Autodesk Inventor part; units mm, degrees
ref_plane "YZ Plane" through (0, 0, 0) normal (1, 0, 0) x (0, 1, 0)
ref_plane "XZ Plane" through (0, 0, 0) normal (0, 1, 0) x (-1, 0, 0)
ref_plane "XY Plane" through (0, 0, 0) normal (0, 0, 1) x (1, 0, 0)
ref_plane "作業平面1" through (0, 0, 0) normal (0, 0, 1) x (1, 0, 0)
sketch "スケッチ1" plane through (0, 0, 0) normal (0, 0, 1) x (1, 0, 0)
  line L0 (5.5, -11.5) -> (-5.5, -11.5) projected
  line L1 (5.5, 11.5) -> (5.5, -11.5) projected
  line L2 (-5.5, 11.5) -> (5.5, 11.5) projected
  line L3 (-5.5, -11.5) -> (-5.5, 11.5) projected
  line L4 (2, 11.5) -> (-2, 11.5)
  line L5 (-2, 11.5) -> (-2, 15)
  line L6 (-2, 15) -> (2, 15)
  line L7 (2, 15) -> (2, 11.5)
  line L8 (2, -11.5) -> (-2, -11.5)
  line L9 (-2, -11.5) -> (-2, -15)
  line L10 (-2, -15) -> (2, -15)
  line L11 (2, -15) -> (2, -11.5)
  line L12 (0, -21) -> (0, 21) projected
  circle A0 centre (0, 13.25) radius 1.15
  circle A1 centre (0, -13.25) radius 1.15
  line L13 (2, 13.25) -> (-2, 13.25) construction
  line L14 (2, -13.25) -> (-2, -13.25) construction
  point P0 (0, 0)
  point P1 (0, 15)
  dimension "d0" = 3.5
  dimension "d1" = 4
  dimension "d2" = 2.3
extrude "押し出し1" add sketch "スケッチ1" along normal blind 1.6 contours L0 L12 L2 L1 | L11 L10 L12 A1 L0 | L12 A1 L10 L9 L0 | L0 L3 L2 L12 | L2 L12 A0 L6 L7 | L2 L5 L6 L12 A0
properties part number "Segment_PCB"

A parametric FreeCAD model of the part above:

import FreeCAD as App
import Part
import Sketcher

doc = App.newDocument("Part")
params = doc.addObject("Spreadsheet::Sheet", "Params")
for row, (alias, value) in enumerate([
    ("sketch1_diameter", "2.3 mm"),
    ("sketch1_width", "4 mm"),
    ("sketch1_width2", "3.5 mm"),
    ("sketch1_height", "23 mm"),
    ("pad1_length", "1.6 mm"),
], start=1):
    params.set(f"A{row}", alias)
    params.set(f"B{row}", "=" + value)
    params.setAlias(f"B{row}", alias)

body = doc.addObject("PartDesign::Body", "Body")

# Sketch on XY plane
sketch1 = body.newObject("Sketcher::SketchObject", "Sketch")
sketch1.AttachmentSupport = (doc.getObject("XY_Plane"), [""])
sketch1.MapMode = "FlatFace"
sketch1.addGeometry([
    Part.LineSegment(App.Vector(2, -11.5, 0), App.Vector(5.5, -11.5, 0)),  # 0
    Part.LineSegment(App.Vector(5.5, -11.5, 0), App.Vector(5.5, 11.5, 0)),  # 1
    Part.LineSegment(App.Vector(5.5, 11.5, 0), App.Vector(2, 11.5, 0)),  # 2
    Part.LineSegment(App.Vector(2, 11.5, 0), App.Vector(2, 15, 0)),  # 3
    Part.LineSegment(App.Vector(2, 15, 0), App.Vector(-2, 15, 0)),  # 4
    Part.LineSegment(App.Vector(-2, 15, 0), App.Vector(-2, 11.5, 0)),  # 5
    Part.LineSegment(App.Vector(-2, 11.5, 0), App.Vector(-5.5, 11.5, 0)),  # 6
    Part.LineSegment(App.Vector(-5.5, 11.5, 0), App.Vector(-5.5, -11.5, 0)),  # 7
    Part.LineSegment(App.Vector(-5.5, -11.5, 0), App.Vector(-2, -11.5, 0)),  # 8
    Part.LineSegment(App.Vector(-2, -11.5, 0), App.Vector(-2, -15, 0)),  # 9
    Part.LineSegment(App.Vector(-2, -15, 0), App.Vector(2, -15, 0)),  # 10
    Part.LineSegment(App.Vector(2, -15, 0), App.Vector(2, -11.5, 0)),  # 11
    Part.Circle(App.Vector(0, -13.25, 0), App.Vector(0, 0, 1), 1.15),  # 12
    Part.Circle(App.Vector(0, 13.25, 0), App.Vector(0, 0, 1), 1.15),  # 13
], False)
sketch1.addConstraint([
    Sketcher.Constraint("Coincident", 0, 2, 1, 1),
    Sketcher.Constraint("Coincident", 1, 2, 2, 1),
    Sketcher.Constraint("Coincident", 2, 2, 3, 1),
    Sketcher.Constraint("Coincident", 3, 2, 4, 1),
    Sketcher.Constraint("Coincident", 4, 2, 5, 1),
    Sketcher.Constraint("Coincident", 5, 2, 6, 1),
    Sketcher.Constraint("Coincident", 6, 2, 7, 1),
    Sketcher.Constraint("Coincident", 7, 2, 8, 1),
    Sketcher.Constraint("Coincident", 8, 2, 9, 1),
    Sketcher.Constraint("Coincident", 9, 2, 10, 1),
    Sketcher.Constraint("Coincident", 10, 2, 11, 1),
    Sketcher.Constraint("Coincident", 11, 2, 0, 1),
    Sketcher.Constraint("Horizontal", 0),
    Sketcher.Constraint("Vertical", 1),
    Sketcher.Constraint("Horizontal", 2),
    Sketcher.Constraint("Vertical", 3),
    Sketcher.Constraint("Horizontal", 4),
    Sketcher.Constraint("Vertical", 5),
    Sketcher.Constraint("Horizontal", 6),
    Sketcher.Constraint("Vertical", 7),
    Sketcher.Constraint("Horizontal", 8),
    Sketcher.Constraint("Vertical", 9),
    Sketcher.Constraint("Horizontal", 10),
    Sketcher.Constraint("Vertical", 11),
    Sketcher.Constraint("Equal", 12, 13),
    Sketcher.Constraint("Symmetric", 12, 3, 13, 3, -1, 1),
    Sketcher.Constraint("Symmetric", 0, 2, 6, 2, -1, 1),
    Sketcher.Constraint("Symmetric", 2, 2, 8, 2, -1, 1),
    Sketcher.Constraint("Symmetric", 4, 2, 10, 2, -1, 1),
    Sketcher.Constraint("Symmetric", 2, 2, 5, 2, -2),
    Sketcher.Constraint("PointOnObject", 12, 3, -2),
    Sketcher.Constraint("Equal", 8, 3),
    Sketcher.Constraint("Diameter", 12, 2.3),
    Sketcher.Constraint("DistanceX", 4, 2, 4, 1, 4.0),
    Sketcher.Constraint("DistanceX", 0, 1, 0, 2, 3.5),
    Sketcher.Constraint("DistanceY", 1, 1, 1, 2, 23.0),
    Sketcher.Constraint("DistanceY", 12, 3, 13, 3, 26.5),
])
sketch1.setExpression("Constraints[32]", "Params.sketch1_diameter")
sketch1.setExpression("Constraints[33]", "Params.sketch1_width")
sketch1.setExpression("Constraints[34]", "Params.sketch1_width2")
sketch1.setExpression("Constraints[35]", "Params.sketch1_height")
pad1 = body.newObject("PartDesign::Pad", "Pad")
pad1.Profile = sketch1
pad1.setExpression("Length", "Params.pad1_length")

doc.recompute()
